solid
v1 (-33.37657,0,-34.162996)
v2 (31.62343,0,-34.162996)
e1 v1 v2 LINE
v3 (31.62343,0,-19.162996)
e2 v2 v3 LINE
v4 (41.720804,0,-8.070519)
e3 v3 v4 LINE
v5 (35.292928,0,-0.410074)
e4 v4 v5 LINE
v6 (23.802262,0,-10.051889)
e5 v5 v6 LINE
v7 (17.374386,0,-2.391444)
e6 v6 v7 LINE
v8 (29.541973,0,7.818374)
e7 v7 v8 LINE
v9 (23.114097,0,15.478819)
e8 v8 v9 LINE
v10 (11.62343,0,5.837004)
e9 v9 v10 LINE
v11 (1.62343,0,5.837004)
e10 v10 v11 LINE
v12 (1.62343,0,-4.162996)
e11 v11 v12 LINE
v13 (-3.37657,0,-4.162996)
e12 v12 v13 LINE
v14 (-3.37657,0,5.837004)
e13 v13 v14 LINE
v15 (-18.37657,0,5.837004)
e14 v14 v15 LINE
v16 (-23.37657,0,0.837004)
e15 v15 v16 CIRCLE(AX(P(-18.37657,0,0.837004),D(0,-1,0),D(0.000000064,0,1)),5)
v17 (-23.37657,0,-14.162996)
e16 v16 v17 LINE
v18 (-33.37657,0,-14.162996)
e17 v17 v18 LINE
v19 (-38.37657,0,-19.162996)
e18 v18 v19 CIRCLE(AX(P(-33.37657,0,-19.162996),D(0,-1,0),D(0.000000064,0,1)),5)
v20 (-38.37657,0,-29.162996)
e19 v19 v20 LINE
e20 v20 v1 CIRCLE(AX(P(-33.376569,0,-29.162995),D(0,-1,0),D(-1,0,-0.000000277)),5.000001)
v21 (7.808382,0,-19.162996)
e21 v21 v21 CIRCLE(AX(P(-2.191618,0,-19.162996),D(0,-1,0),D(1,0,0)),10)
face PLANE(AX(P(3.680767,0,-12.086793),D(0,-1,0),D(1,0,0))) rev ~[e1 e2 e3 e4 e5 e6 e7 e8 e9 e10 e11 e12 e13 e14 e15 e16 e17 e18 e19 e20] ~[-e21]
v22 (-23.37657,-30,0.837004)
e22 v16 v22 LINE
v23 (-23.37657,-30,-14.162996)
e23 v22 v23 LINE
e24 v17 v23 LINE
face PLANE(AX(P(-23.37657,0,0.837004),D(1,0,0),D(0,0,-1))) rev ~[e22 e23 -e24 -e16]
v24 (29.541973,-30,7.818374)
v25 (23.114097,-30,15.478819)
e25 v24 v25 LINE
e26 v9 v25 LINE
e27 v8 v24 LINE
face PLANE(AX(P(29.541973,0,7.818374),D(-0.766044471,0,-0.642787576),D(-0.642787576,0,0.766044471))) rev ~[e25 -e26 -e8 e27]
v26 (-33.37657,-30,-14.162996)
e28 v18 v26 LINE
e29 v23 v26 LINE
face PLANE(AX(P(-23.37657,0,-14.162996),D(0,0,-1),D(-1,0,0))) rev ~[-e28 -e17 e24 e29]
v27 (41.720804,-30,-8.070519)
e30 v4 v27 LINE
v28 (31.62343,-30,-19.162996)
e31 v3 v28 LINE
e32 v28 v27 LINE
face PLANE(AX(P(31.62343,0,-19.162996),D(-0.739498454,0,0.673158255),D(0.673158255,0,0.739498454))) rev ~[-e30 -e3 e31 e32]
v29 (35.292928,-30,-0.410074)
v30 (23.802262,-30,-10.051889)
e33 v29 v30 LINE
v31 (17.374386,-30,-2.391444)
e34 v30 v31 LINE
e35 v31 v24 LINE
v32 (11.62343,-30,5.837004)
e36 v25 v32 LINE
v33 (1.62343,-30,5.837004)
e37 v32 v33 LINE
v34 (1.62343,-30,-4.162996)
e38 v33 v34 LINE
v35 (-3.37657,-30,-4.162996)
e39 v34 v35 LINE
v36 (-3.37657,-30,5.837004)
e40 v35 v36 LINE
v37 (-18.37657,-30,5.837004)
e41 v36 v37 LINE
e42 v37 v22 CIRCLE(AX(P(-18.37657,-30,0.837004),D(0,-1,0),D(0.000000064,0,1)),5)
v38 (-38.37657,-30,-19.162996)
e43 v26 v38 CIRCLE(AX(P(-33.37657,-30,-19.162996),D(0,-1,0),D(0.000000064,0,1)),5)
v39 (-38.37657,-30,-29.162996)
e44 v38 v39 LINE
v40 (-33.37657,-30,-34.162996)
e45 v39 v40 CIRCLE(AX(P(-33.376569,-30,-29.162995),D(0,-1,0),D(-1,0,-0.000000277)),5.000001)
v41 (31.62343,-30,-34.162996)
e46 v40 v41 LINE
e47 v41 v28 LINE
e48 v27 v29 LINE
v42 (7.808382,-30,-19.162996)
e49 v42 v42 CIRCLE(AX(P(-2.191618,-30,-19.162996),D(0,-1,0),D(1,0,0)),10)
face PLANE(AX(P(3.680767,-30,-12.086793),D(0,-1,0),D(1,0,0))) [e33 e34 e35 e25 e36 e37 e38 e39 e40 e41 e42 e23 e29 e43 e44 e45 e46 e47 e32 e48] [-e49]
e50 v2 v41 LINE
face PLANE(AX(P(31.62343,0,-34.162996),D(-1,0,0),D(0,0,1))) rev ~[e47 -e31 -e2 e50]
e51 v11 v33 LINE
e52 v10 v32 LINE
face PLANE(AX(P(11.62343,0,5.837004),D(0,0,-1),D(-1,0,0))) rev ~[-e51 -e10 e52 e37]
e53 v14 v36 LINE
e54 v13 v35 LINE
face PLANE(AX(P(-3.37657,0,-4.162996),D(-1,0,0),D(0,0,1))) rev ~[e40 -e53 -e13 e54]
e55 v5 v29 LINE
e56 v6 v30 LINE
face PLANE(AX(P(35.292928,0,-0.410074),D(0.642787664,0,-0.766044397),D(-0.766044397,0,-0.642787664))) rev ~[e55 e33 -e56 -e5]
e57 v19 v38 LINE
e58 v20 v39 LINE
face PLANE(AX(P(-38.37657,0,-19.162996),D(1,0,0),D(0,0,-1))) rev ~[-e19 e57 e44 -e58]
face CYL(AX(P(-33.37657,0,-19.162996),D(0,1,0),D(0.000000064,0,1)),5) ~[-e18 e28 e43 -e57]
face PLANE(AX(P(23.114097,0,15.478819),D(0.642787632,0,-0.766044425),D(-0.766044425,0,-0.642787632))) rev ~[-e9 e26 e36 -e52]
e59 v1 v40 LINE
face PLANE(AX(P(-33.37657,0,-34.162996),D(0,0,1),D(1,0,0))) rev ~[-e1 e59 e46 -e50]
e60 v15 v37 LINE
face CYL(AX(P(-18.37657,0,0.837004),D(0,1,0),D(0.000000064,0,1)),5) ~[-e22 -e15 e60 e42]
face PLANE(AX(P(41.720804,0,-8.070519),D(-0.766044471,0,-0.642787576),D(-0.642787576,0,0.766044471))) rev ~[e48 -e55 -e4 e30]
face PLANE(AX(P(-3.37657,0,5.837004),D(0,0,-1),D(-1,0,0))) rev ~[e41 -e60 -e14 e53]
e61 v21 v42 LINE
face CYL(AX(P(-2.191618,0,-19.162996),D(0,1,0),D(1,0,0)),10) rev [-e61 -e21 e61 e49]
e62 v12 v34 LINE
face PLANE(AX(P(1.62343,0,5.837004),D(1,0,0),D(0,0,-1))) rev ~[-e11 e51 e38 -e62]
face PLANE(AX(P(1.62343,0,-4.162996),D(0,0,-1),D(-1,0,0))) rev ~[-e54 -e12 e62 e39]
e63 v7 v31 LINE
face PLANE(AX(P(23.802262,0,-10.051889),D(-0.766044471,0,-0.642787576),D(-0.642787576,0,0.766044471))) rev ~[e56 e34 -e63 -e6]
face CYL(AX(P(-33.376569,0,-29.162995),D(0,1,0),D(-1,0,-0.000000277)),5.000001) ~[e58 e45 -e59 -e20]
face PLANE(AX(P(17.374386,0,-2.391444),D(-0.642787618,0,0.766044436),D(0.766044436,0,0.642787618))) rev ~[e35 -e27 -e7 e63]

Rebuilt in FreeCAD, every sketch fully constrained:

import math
import FreeCAD as App
import Part
import Sketcher
Q = App.Units.Quantity

doc = App.newDocument("Part")
body = doc.addObject("PartDesign::Body", "Body")

# Sketch on XZ plane
sketch1 = body.newObject("Sketcher::SketchObject", "Sketch")
sketch1.AttachmentSupport = (doc.getObject("XZ_Plane"), [""])
sketch1.MapMode = "FlatFace"
sketch1.addGeometry([
    Part.ArcOfCircle(Part.Circle(App.Vector(-33.4, -29.2, 0), App.Vector(0, 0, 1), 5), math.radians(-180), math.radians(-90)),  # 0
    Part.LineSegment(App.Vector(-33.4, -34.2, 0), App.Vector(31.6, -34.2, 0)),  # 1
    Part.LineSegment(App.Vector(31.6, -34.2, 0), App.Vector(31.6, -19.2, 0)),  # 2
    Part.LineSegment(App.Vector(31.6, -19.2, 0), App.Vector(41.7, -8.1, 0)),  # 3
    Part.LineSegment(App.Vector(41.7, -8.1, 0), App.Vector(35.3, -0.4, 0)),  # 4
    Part.LineSegment(App.Vector(35.3, -0.4, 0), App.Vector(23.8, -10.1, 0)),  # 5
    Part.LineSegment(App.Vector(23.8, -10.1, 0), App.Vector(17.4, -2.4, 0)),  # 6
    Part.LineSegment(App.Vector(17.4, -2.4, 0), App.Vector(29.5, 7.8, 0)),  # 7
    Part.LineSegment(App.Vector(29.5, 7.8, 0), App.Vector(23.1, 15.5, 0)),  # 8
    Part.LineSegment(App.Vector(23.1, 15.5, 0), App.Vector(11.6, 5.8, 0)),  # 9
    Part.LineSegment(App.Vector(11.6, 5.8, 0), App.Vector(1.6, 5.8, 0)),  # 10
    Part.LineSegment(App.Vector(1.6, 5.8, 0), App.Vector(1.6, -4.2, 0)),  # 11
    Part.LineSegment(App.Vector(1.6, -4.2, 0), App.Vector(-3.4, -4.2, 0)),  # 12
    Part.LineSegment(App.Vector(-3.4, -4.2, 0), App.Vector(-3.4, 5.8, 0)),  # 13
    Part.LineSegment(App.Vector(-3.4, 5.8, 0), App.Vector(-18.4, 5.8, 0)),  # 14
    Part.ArcOfCircle(Part.Circle(App.Vector(-18.4, 0.8, 0), App.Vector(0, 0, 1), 5), math.radians(90), math.radians(180)),  # 15
    Part.LineSegment(App.Vector(-23.4, 0.8, 0), App.Vector(-23.4, -14.2, 0)),  # 16
    Part.LineSegment(App.Vector(-23.4, -14.2, 0), App.Vector(-33.4, -14.2, 0)),  # 17
    Part.ArcOfCircle(Part.Circle(App.Vector(-33.4, -19.2, 0), App.Vector(0, 0, 1), 5), math.radians(90), math.radians(180)),  # 18
    Part.LineSegment(App.Vector(-38.4, -19.2, 0), App.Vector(-38.4, -29.2, 0)),  # 19
    Part.Circle(App.Vector(-2.2, -19.2, 0), App.Vector(0, 0, 1), 10),  # 20
], False)
sketch1.addConstraint([
    Sketcher.Constraint("Tangent", 0, 2, 1, 1),
    Sketcher.Constraint("Coincident", 1, 2, 2, 1),
    Sketcher.Constraint("Coincident", 2, 2, 3, 1),
    Sketcher.Constraint("Coincident", 3, 2, 4, 1),
    Sketcher.Constraint("Coincident", 4, 2, 5, 1),
    Sketcher.Constraint("Coincident", 5, 2, 6, 1),
    Sketcher.Constraint("Coincident", 6, 2, 7, 1),
    Sketcher.Constraint("Coincident", 7, 2, 8, 1),
    Sketcher.Constraint("Coincident", 8, 2, 9, 1),
    Sketcher.Constraint("Coincident", 9, 2, 10, 1),
    Sketcher.Constraint("Coincident", 10, 2, 11, 1),
    Sketcher.Constraint("Coincident", 11, 2, 12, 1),
    Sketcher.Constraint("Coincident", 12, 2, 13, 1),
    Sketcher.Constraint("Coincident", 13, 2, 14, 1),
    Sketcher.Constraint("Tangent", 14, 2, 15, 1),
    Sketcher.Constraint("Tangent", 15, 2, 16, 1),
    Sketcher.Constraint("Coincident", 16, 2, 17, 1),
    Sketcher.Constraint("Tangent", 17, 2, 18, 1),
    Sketcher.Constraint("Tangent", 18, 2, 19, 1),
    Sketcher.Constraint("Tangent", 19, 2, 0, 1),
    Sketcher.Constraint("Horizontal", 1),
    Sketcher.Constraint("Vertical", 2),
    Sketcher.Constraint("Horizontal", 10),
    Sketcher.Constraint("Vertical", 11),
    Sketcher.Constraint("Horizontal", 12),
    Sketcher.Constraint("Vertical", 13),
    Sketcher.Constraint("Horizontal", 14),
    Sketcher.Constraint("Vertical", 16),
    Sketcher.Constraint("Horizontal", 17),
    Sketcher.Constraint("Vertical", 19),
    Sketcher.Constraint("Equal", 0, 15),
    Sketcher.Constraint("Equal", 15, 18),
    Sketcher.Constraint("Perpendicular", 4, 5),
    Sketcher.Constraint("Perpendicular", 5, 6),
    Sketcher.Constraint("Perpendicular", 6, 7),
    Sketcher.Constraint("Perpendicular", 7, 8),
    Sketcher.Constraint("Perpendicular", 8, 9),
    Sketcher.Constraint("Horizontal", 18, 3, 20, 3),
    Sketcher.Constraint("Horizontal", 20, 3, 2, 2),
    Sketcher.Constraint("Horizontal", 10, 2, 13, 2),
    Sketcher.Constraint("Equal", 10, 17),
    Sketcher.Constraint("Equal", 14, 2),
    Sketcher.Constraint("Equal", 17, 11),
    Sketcher.Constraint("Equal", 2, 16),
    Sketcher.Constraint("Equal", 13, 19),
    Sketcher.Constraint("Equal", 3, 5),
    Sketcher.Constraint("Equal", 4, 6),
    Sketcher.Constraint("Equal", 6, 8),
    Sketcher.Constraint("Equal", 5, 9),
    Sketcher.Constraint("Diameter", 20, 20.0),
    Sketcher.Constraint("Radius", 0, 5.000001),
    Sketcher.Constraint("DistanceX", 1, 1, 1, 2, 65.0),
    Sketcher.Constraint("DistanceX", 10, 2, 10, 1, 10.0),
    Sketcher.Constraint("DistanceX", 12, 2, 12, 1, 5.0),
    Sketcher.Constraint("Angle", 4, Q("129.999997 deg")),
    Sketcher.Constraint("Distance", 3, 15.0),
    Sketcher.Constraint("Distance", 4, 10.0),
    Sketcher.Constraint("DistanceX", 0, 3, -1, 1, 33.376569),
    Sketcher.Constraint("DistanceX", 20, 3, -1, 1, 2.191618),
    Sketcher.Constraint("DistanceY", 3, 2, -1, 1, 8.070519),
])
pad1 = body.newObject("PartDesign::Pad", "Pad")
pad1.Profile = sketch1
pad1.Length = 30

doc.recompute()
